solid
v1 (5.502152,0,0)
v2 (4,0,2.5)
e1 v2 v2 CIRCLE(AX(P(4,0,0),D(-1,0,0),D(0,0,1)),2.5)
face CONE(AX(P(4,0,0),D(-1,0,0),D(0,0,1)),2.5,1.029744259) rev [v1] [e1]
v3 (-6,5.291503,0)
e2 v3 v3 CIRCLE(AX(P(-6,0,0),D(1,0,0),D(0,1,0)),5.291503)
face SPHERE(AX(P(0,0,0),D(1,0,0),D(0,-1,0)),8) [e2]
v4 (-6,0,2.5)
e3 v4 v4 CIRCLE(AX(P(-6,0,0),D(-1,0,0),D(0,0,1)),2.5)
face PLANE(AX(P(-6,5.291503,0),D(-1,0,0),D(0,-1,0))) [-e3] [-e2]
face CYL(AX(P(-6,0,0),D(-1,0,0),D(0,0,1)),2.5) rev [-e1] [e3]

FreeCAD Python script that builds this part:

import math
import FreeCAD as App
import Part
import Sketcher
from FreeCAD import Vector
Q = App.Units.Quantity

doc = App.newDocument("Part")
body = doc.addObject("PartDesign::Body", "Body")

# Sketch on XY plane
sketch1 = body.newObject("Sketcher::SketchObject", "Sketch")
sketch1.AttachmentSupport = (doc.getObject("XY_Plane"), [""])
sketch1.MapMode = "FlatFace"
sketch1.addGeometry([
    Part.LineSegment(Vector(-6, 0, 0), Vector(8, 0, 0)),
    Part.ArcOfCircle(Part.Circle(Vector(0, 0, 0), Vector(0, 0, 1), 8), math.radians(0), math.radians(139)),
    Part.LineSegment(Vector(-6, 5, 0), Vector(-6, 0, 0)),
], False)
sketch1.addConstraint([
    Sketcher.Constraint("Coincident", 0, 2, 1, 1),
    Sketcher.Constraint("Coincident", 1, 2, 2, 1),
    Sketcher.Constraint("Coincident", 2, 2, 0, 1),
    Sketcher.Constraint("Horizontal", 0),
    Sketcher.Constraint("Vertical", 2),
    Sketcher.Constraint("Coincident", 1, 3, -1, 1),
    Sketcher.Constraint("PointOnObject", 0, 2, -1),
    Sketcher.Constraint("Radius", 1, Q("8 mm")),
    Sketcher.Constraint("DistanceX", 0, 1, 0, 2, Q("14 mm")),
])
revolution = body.newObject("PartDesign::Revolution", "Revolution")
revolution.Profile = sketch1
revolution.ReferenceAxis = (sketch1, ["H_Axis"])
revolution.Angle = 360

# Sketch on YZ plane
sketch2 = body.newObject("Sketcher::SketchObject", "Sketch001")
sketch2.AttachmentSupport = (doc.getObject("YZ_Plane"), [""])
sketch2.MapMode = "FlatFace"
sketch2.AttachmentOffset = App.Placement(Vector(0, 0, -6), App.Rotation())
sketch2.addGeometry(Part.Circle(Vector(0, 0, 0), Vector(0, 0, 1), 2.5), False)
sketch2.addConstraint([
    Sketcher.Constraint("Coincident", 0, 3, -1, 1),
    Sketcher.Constraint("Diameter", 0, Q("5 mm")),
])
doc.recompute()
hole = body.newObject("PartDesign::Hole", "Hole")
hole.Profile = sketch2
hole.ThreadType = "None"
hole.Diameter = 5
hole.DepthType = "Dimension"
hole.Depth = 10
hole.DrillPoint = "Angled"
hole.DrillPointAngle = 118
hole.Reversed = True

doc.recompute()
